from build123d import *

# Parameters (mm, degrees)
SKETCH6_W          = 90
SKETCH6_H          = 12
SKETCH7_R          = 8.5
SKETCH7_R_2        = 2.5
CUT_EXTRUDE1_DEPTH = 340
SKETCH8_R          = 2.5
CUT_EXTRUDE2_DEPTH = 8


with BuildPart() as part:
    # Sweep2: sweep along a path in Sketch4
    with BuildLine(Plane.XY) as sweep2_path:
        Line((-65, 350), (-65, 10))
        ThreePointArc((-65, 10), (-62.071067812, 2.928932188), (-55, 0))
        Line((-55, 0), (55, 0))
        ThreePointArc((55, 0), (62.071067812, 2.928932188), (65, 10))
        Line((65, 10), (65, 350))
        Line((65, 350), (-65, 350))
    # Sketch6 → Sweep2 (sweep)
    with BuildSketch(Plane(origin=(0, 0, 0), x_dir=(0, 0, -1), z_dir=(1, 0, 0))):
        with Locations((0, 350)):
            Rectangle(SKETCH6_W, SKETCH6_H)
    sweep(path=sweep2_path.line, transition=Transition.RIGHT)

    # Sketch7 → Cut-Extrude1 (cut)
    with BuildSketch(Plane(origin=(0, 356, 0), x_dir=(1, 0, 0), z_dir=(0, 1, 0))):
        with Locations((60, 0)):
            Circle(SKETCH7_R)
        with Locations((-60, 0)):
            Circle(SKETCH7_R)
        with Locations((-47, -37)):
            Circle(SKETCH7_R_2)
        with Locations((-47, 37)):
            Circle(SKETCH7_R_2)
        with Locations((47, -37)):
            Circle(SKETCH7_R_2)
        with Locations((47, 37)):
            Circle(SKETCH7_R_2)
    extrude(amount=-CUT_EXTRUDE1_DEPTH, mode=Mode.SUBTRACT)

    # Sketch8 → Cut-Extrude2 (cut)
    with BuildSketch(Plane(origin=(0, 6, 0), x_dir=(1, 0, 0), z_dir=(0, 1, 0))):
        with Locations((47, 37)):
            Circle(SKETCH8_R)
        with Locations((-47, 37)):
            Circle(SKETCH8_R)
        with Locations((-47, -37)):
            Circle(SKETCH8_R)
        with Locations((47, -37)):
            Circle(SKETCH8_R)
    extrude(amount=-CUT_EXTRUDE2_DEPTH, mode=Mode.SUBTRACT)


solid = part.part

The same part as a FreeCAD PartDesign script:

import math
import FreeCAD as App
import Part
import Sketcher
from FreeCAD import Vector
Q = App.Units.Quantity

doc = App.newDocument("Part")
body = doc.addObject("PartDesign::Body", "Body")

# Sketch on YZ plane
sketch1 = doc.addObject("Sketcher::SketchObject", "Sketch")
body.addObject(sketch1)
sketch1.AttachmentSupport = (doc.YZ_Plane, [""])
sketch1.MapMode = "FlatFace"
sketch1.addGeometry(Part.LineSegment(Vector(356, 45, 0), Vector(344, 45, 0)), False)
sketch1.addGeometry(Part.LineSegment(Vector(344, 45, 0), Vector(344, -45, 0)), False)
sketch1.addGeometry(Part.LineSegment(Vector(344, -45, 0), Vector(356, -45, 0)), False)
sketch1.addGeometry(Part.LineSegment(Vector(356, -45, 0), Vector(356, 45, 0)), False)
sketch1.addConstraint(Sketcher.Constraint("Coincident", 0, 2, 1, 1))
sketch1.addConstraint(Sketcher.Constraint("Coincident", 1, 2, 2, 1))
sketch1.addConstraint(Sketcher.Constraint("Coincident", 2, 2, 3, 1))
sketch1.addConstraint(Sketcher.Constraint("Coincident", 3, 2, 0, 1))
sketch1.addConstraint(Sketcher.Constraint("Horizontal", 0))
sketch1.addConstraint(Sketcher.Constraint("Vertical", 1))
sketch1.addConstraint(Sketcher.Constraint("Horizontal", 2))
sketch1.addConstraint(Sketcher.Constraint("Vertical", 3))
sketch1.addConstraint(Sketcher.Constraint("DistanceX", 0, 2, 0, 1, Q("12 mm")))
sketch1.addConstraint(Sketcher.Constraint("DistanceY", 1, 2, 1, 1, Q("90 mm")))
sketch1.addConstraint(Sketcher.Constraint("DistanceX", -1, 1, 0, 2, Q("344 mm")))
sketch1.addConstraint(Sketcher.Constraint("DistanceY", -1, 1, 0, 2, Q("45 mm")))

# Sketch on XY plane
sketch2 = doc.addObject("Sketcher::SketchObject", "Sketch001")
body.addObject(sketch2)
sketch2.AttachmentSupport = (doc.XY_Plane, [""])
sketch2.MapMode = "FlatFace"
sketch2.addGeometry(Part.LineSegment(Vector(-65, 350, 0), Vector(-65, 10, 0)), False)
sketch2.addGeometry(Part.ArcOfCircle(Part.Circle(Vector(-55, 10, 0), Vector(0, 0, 1), 10), math.radians(180), math.radians(270)), False)
sketch2.addGeometry(Part.LineSegment(Vector(-55, 0, 0), Vector(55, 0, 0)), False)
sketch2.addGeometry(Part.ArcOfCircle(Part.Circle(Vector(55, 10, 0), Vector(0, 0, 1), 10), math.radians(-90), math.radians(0)), False)
sketch2.addGeometry(Part.LineSegment(Vector(65, 10, 0), Vector(65, 350, 0)), False)
sketch2.addGeometry(Part.LineSegment(Vector(65, 350, 0), Vector(-65, 350, 0)), False)
sketch2.addConstraint(Sketcher.Constraint("Tangent", 0, 2, 1, 1))
sketch2.addConstraint(Sketcher.Constraint("Tangent", 1, 2, 2, 1))
sketch2.addConstraint(Sketcher.Constraint("Tangent", 2, 2, 3, 1))
sketch2.addConstraint(Sketcher.Constraint("Tangent", 3, 2, 4, 1))
sketch2.addConstraint(Sketcher.Constraint("Coincident", 4, 2, 5, 1))
sketch2.addConstraint(Sketcher.Constraint("Coincident", 5, 2, 0, 1))
sketch2.addConstraint(Sketcher.Constraint("Vertical", 0))
sketch2.addConstraint(Sketcher.Constraint("Horizontal", 2))
sketch2.addConstraint(Sketcher.Constraint("Vertical", 4))
sketch2.addConstraint(Sketcher.Constraint("Horizontal", 5))
sketch2.addConstraint(Sketcher.Constraint("Equal", 1, 3))
sketch2.addConstraint(Sketcher.Constraint("Symmetric", 1, 2, 2, 2, -1, 1))
sketch2.addConstraint(Sketcher.Constraint("Radius", 1, Q("10 mm")))
sketch2.addConstraint(Sketcher.Constraint("DistanceX", 2, 1, 2, 2, Q("110 mm")))
sketch2.addConstraint(Sketcher.Constraint("DistanceY", 0, 2, 0, 1, Q("340 mm")))
doc.recompute()

additivepipe = doc.addObject("PartDesign::AdditivePipe", "AdditivePipe")
body.addObject(additivepipe)
additivepipe.Profile = sketch1
additivepipe.Spine = (sketch2, ["Edge1", "Edge2", "Edge3", "Edge4", "Edge5", "Edge6"])
additivepipe.Transition = "Right corner"

# Sketch on XZ plane
sketch3 = doc.addObject("Sketcher::SketchObject", "Sketch002")
body.addObject(sketch3)
sketch3.AttachmentSupport = (doc.XZ_Plane, [""])
sketch3.MapMode = "FlatFace"
sketch3.AttachmentOffset = App.Placement(Vector(0, 0, -356), App.Rotation())
sketch3.addGeometry(Part.Circle(Vector(60, 0, 0), Vector(0, 0, 1), 8.5), False)
sketch3.addGeometry(Part.Circle(Vector(-60, 0, 0), Vector(0, 0, 1), 8.5), False)
sketch3.addGeometry(Part.Circle(Vector(-47, 37, 0), Vector(0, 0, 1), 2.5), False)
sketch3.addGeometry(Part.Circle(Vector(-47, -37, 0), Vector(0, 0, 1), 2.5), False)
sketch3.addGeometry(Part.Circle(Vector(47, 37, 0), Vector(0, 0, 1), 2.5), False)
sketch3.addGeometry(Part.Circle(Vector(47, -37, 0), Vector(0, 0, 1), 2.5), False)
sketch3.addConstraint(Sketcher.Constraint("Equal", 0, 1))
sketch3.addConstraint(Sketcher.Constraint("Equal", 2, 3))
sketch3.addConstraint(Sketcher.Constraint("Equal", 3, 4))
sketch3.addConstraint(Sketcher.Constraint("Equal", 4, 5))
sketch3.addConstraint(Sketcher.Constraint("Symmetric", 0, 3, 1, 3, -1, 1))
sketch3.addConstraint(Sketcher.Constraint("Symmetric", 3, 3, 4, 3, -1, 1))
sketch3.addConstraint(Sketcher.Constraint("Symmetric", 2, 3, 5, 3, -1, 1))
sketch3.addConstraint(Sketcher.Constraint("Symmetric", 2, 3, 4, 3, -2))
sketch3.addConstraint(Sketcher.Constraint("PointOnObject", 0, 3, -1))
sketch3.addConstraint(Sketcher.Constraint("Diameter", 0, Q("17 mm")))
sketch3.addConstraint(Sketcher.Constraint("Diameter", 2, Q("5 mm")))
sketch3.addConstraint(Sketcher.Constraint("DistanceX", -1, 1, 0, 3, Q("60 mm")))
sketch3.addConstraint(Sketcher.Constraint("DistanceX", 2, 3, -1, 1, Q("47 mm")))
sketch3.addConstraint(Sketcher.Constraint("DistanceY", -1, 1, 2, 3, Q("37 mm")))
pocket1 = doc.addObject("PartDesign::Pocket", "Pocket")
body.addObject(pocket1)
pocket1.Profile = sketch3
pocket1.Length = 340
pocket1.Reversed = True

# Sketch on XZ plane
sketch4 = doc.addObject("Sketcher::SketchObject", "Sketch003")
body.addObject(sketch4)
sketch4.AttachmentSupport = (doc.XZ_Plane, [""])
sketch4.MapMode = "FlatFace"
sketch4.AttachmentOffset = App.Placement(Vector(0, 0, -6), App.Rotation())
sketch4.addGeometry(Part.Circle(Vector(47, -37, 0), Vector(0, 0, 1), 2.5), False)
sketch4.addGeometry(Part.Circle(Vector(-47, -37, 0), Vector(0, 0, 1), 2.5), False)
sketch4.addGeometry(Part.Circle(Vector(-47, 37, 0), Vector(0, 0, 1), 2.5), False)
sketch4.addGeometry(Part.Circle(Vector(47, 37, 0), Vector(0, 0, 1), 2.5), False)
sketch4.addConstraint(Sketcher.Constraint("Equal", 0, 1))
sketch4.addConstraint(Sketcher.Constraint("Equal", 1, 2))
sketch4.addConstraint(Sketcher.Constraint("Equal", 2, 3))
sketch4.addConstraint(Sketcher.Constraint("Symmetric", 0, 3, 2, 3, -1, 1))
sketch4.addConstraint(Sketcher.Constraint("Symmetric", 1, 3, 3, 3, -1, 1))
sketch4.addConstraint(Sketcher.Constraint("Symmetric", 0, 3, 1, 3, -2))
sketch4.addConstraint(Sketcher.Constraint("Diameter", 0, Q("5 mm")))
sketch4.addConstraint(Sketcher.Constraint("DistanceX", -1, 1, 0, 3, Q("47 mm")))
sketch4.addConstraint(Sketcher.Constraint("DistanceY", 0, 3, -1, 1, Q("37 mm")))
pocket2 = doc.addObject("PartDesign::Pocket", "Pocket001")
body.addObject(pocket2)
pocket2.Profile = sketch4
pocket2.Length = 8
pocket2.Reversed = True

doc.recompute()
